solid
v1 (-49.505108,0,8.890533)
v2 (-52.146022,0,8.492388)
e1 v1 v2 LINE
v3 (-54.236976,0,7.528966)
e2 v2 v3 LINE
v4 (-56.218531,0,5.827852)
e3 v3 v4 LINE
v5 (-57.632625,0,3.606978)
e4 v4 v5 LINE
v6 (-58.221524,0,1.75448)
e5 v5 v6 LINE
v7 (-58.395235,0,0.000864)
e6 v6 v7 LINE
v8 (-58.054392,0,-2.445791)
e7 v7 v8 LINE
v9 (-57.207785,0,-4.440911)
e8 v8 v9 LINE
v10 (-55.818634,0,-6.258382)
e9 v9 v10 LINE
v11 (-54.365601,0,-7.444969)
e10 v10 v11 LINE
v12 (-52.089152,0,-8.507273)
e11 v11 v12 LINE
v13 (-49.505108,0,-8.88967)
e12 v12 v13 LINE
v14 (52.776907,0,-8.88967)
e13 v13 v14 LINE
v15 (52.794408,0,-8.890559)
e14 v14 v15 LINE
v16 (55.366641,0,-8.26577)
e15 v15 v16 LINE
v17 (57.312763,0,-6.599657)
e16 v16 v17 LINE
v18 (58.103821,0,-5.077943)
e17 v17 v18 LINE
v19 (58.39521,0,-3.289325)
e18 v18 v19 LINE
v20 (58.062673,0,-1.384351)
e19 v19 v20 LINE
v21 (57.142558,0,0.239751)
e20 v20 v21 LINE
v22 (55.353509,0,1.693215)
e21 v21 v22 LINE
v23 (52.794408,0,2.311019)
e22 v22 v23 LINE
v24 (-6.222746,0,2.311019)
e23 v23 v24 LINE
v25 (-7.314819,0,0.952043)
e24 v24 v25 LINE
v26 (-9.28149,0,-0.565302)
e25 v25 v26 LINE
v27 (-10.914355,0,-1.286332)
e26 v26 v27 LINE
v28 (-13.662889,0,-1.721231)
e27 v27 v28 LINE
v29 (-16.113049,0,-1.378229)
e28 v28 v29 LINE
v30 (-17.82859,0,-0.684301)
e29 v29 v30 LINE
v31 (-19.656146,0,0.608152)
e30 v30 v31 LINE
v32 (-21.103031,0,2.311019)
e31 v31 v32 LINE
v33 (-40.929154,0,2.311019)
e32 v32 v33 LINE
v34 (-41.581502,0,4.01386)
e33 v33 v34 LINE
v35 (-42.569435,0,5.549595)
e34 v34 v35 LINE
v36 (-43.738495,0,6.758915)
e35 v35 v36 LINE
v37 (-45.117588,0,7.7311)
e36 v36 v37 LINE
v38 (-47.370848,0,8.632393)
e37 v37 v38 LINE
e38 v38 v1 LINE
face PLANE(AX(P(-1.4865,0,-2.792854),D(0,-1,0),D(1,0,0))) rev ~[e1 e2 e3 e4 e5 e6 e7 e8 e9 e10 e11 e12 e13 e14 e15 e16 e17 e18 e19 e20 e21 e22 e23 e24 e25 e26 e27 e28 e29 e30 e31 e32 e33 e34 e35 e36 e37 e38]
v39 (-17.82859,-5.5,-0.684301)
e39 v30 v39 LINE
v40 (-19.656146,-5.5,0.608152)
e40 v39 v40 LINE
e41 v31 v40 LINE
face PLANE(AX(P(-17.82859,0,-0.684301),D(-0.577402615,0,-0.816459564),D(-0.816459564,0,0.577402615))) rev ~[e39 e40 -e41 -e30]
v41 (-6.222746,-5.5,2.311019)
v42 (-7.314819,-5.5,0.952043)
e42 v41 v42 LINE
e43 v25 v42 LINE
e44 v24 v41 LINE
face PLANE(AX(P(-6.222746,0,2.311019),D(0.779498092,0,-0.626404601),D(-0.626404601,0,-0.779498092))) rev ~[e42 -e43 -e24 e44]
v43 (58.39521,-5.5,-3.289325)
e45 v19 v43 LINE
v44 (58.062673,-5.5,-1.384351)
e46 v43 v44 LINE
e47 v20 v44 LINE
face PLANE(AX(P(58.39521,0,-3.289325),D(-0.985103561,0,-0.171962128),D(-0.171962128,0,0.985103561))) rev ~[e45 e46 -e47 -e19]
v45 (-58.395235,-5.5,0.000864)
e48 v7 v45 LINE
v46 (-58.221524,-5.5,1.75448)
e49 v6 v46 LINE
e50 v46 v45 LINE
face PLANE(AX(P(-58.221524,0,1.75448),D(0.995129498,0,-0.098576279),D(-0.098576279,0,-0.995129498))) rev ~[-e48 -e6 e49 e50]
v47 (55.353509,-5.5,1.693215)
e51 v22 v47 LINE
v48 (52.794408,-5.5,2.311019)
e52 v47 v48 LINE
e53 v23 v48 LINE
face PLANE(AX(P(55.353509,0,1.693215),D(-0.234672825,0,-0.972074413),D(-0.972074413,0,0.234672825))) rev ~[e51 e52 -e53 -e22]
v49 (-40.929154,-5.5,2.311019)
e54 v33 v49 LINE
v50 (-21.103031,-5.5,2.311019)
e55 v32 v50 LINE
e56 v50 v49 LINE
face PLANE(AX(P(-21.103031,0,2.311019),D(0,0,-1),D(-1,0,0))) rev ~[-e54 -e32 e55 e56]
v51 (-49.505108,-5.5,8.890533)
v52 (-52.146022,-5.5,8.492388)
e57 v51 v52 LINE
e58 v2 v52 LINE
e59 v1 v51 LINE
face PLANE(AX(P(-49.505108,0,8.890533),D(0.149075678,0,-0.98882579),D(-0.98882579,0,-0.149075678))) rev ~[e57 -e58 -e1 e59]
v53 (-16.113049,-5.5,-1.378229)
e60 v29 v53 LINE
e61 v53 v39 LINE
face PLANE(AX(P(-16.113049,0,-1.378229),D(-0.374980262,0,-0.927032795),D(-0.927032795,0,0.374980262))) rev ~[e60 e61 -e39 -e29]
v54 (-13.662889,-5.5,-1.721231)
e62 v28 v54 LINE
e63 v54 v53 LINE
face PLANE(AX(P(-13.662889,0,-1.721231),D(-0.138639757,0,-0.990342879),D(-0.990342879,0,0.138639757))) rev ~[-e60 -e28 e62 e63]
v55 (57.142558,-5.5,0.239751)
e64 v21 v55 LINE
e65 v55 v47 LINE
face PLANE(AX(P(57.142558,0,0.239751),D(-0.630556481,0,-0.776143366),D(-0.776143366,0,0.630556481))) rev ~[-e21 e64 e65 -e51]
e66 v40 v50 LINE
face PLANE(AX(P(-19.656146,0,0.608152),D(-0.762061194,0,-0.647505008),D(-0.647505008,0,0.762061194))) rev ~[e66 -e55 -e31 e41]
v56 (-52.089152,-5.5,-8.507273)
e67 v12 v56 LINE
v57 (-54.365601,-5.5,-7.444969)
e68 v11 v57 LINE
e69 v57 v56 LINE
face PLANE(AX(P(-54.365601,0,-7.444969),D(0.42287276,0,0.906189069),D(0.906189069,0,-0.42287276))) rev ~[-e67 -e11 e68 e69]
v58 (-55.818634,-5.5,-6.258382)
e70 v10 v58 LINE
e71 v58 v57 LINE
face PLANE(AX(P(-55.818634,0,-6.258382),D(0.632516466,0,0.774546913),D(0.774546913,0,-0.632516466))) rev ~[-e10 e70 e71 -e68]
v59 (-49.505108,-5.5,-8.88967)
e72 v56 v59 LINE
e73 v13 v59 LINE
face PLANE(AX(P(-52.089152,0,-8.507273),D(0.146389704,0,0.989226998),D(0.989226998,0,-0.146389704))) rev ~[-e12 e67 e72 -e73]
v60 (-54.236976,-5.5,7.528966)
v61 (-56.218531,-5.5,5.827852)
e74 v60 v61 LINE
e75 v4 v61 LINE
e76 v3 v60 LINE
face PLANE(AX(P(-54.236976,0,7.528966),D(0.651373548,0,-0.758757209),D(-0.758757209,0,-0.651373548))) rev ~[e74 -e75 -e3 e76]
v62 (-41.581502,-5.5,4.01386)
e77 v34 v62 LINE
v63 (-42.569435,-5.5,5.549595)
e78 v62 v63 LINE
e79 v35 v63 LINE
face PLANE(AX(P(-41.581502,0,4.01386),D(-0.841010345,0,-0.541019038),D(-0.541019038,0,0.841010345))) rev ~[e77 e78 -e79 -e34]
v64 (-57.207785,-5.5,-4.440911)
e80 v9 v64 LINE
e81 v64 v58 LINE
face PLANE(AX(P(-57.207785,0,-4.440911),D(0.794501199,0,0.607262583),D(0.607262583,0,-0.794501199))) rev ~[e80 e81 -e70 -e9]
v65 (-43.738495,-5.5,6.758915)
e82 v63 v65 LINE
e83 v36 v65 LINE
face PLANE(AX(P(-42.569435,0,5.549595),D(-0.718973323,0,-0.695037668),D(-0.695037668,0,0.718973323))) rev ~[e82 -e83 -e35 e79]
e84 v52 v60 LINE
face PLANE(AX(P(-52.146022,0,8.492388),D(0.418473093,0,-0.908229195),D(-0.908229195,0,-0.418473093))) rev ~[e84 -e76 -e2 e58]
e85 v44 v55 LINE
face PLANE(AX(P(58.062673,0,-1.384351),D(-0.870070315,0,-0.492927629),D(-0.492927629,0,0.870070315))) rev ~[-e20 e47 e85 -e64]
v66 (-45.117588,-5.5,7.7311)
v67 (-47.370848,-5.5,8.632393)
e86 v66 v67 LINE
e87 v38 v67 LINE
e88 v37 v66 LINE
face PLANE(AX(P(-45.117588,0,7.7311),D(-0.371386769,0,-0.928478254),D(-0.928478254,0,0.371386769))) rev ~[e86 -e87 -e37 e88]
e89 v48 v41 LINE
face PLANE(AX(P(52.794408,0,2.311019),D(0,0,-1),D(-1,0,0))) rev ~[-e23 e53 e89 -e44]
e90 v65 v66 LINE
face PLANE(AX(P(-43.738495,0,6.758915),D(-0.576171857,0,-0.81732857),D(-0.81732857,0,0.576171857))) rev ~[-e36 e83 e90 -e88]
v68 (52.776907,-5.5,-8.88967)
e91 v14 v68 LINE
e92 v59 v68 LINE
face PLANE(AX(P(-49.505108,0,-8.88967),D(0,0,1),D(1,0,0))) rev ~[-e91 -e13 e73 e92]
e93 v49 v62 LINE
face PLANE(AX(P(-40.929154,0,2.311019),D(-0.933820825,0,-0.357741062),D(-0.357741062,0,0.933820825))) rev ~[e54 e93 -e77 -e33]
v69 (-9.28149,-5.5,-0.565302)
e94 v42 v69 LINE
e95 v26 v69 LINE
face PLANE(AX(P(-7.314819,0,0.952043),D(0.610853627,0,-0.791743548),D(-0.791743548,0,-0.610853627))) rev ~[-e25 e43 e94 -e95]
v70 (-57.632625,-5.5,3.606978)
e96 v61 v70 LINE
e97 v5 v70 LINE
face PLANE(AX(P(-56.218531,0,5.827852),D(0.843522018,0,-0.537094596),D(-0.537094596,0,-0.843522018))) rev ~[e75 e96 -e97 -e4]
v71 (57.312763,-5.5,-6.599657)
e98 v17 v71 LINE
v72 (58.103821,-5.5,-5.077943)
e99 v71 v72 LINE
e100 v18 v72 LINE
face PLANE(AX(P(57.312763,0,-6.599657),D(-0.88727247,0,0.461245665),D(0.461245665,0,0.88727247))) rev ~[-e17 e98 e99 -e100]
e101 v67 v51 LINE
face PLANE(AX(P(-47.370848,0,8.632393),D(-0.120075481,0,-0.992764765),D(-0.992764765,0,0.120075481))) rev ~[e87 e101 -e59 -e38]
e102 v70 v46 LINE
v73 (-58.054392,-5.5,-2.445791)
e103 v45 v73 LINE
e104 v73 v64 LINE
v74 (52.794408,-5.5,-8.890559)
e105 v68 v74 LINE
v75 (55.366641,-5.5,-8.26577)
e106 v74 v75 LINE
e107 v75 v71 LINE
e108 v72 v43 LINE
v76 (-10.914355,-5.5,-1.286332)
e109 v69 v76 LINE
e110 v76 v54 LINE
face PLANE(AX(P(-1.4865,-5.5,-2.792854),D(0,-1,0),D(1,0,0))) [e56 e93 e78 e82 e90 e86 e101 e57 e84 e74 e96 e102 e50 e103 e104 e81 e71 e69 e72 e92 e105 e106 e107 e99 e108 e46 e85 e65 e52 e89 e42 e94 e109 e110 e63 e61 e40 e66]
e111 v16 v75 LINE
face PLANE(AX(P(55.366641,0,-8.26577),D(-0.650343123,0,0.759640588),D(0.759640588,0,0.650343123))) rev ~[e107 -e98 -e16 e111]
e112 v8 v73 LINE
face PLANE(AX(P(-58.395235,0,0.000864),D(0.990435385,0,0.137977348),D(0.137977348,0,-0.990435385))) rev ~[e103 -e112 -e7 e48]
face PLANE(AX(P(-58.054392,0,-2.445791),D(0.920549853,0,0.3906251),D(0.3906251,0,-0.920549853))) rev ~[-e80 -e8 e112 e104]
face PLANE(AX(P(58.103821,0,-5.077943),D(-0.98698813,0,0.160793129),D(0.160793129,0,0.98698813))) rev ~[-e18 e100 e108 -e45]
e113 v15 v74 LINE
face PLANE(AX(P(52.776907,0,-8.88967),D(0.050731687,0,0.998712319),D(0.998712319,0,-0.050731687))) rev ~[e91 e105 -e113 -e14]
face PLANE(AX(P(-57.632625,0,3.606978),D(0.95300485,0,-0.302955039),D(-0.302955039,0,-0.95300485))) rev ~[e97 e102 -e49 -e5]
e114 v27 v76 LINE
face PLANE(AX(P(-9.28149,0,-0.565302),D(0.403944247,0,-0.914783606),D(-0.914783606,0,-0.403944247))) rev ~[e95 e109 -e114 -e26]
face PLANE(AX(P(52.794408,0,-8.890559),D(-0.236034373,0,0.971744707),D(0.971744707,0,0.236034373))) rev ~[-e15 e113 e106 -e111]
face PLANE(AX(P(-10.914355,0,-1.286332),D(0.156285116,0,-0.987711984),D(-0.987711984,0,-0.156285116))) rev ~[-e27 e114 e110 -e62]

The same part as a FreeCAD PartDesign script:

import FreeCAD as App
import Part
import Sketcher
from FreeCAD import Vector
Q = App.Units.Quantity

doc = App.newDocument("Part")
params = doc.addObject("Spreadsheet::Sheet", "Params")
for row, (alias, value) in enumerate([
    ("pad1_length", "5.5 mm"),
], start=1):
    params.set(f"A{row}", alias)
    params.set(f"B{row}", "=" + value)
    params.setAlias(f"B{row}", alias)

body = doc.addObject("PartDesign::Body", "Body")

sketch1 = doc.addObject("Sketcher::SketchObject", "Sketch")
body.addObject(sketch1)
sketch1.AttachmentSupport = (doc.XZ_Plane, [""])
sketch1.MapMode = "FlatFace"
sketch1.addGeometry([
    Part.LineSegment(Vector(55.353509, 1.693215, 0), Vector(52.794408, 2.311019, 0)),
    Part.LineSegment(Vector(52.794408, 2.311019, 0), Vector(-6.222746, 2.311019, 0)),
    Part.LineSegment(Vector(-6.222746, 2.311019, 0), Vector(-7.314819, 0.952043, 0)),
    Part.LineSegment(Vector(-7.314819, 0.952043, 0), Vector(-9.28149, -0.565302, 0)),
    Part.LineSegment(Vector(-9.28149, -0.565302, 0), Vector(-10.914355, -1.286332, 0)),
    Part.LineSegment(Vector(-10.914355, -1.286332, 0), Vector(-13.662889, -1.721231, 0)),
    Part.LineSegment(Vector(-13.662889, -1.721231, 0), Vector(-16.113049, -1.378229, 0)),
    Part.LineSegment(Vector(-16.113049, -1.378229, 0), Vector(-17.82859, -0.684301, 0)),
    Part.LineSegment(Vector(-17.82859, -0.684301, 0), Vector(-19.656146, 0.608152, 0)),
    Part.LineSegment(Vector(-19.656146, 0.608152, 0), Vector(-21.103031, 2.311019, 0)),
    Part.LineSegment(Vector(-21.103031, 2.311019, 0), Vector(-40.929154, 2.311019, 0)),
    Part.LineSegment(Vector(-40.929154, 2.311019, 0), Vector(-41.581502, 4.01386, 0)),
    Part.LineSegment(Vector(-41.581502, 4.01386, 0), Vector(-42.569435, 5.549595, 0)),
    Part.LineSegment(Vector(-42.569435, 5.549595, 0), Vector(-43.738495, 6.758915, 0)),
    Part.LineSegment(Vector(-43.738495, 6.758915, 0), Vector(-45.117588, 7.7311, 0)),
    Part.LineSegment(Vector(-45.117588, 7.7311, 0), Vector(-47.370848, 8.632393, 0)),
    Part.LineSegment(Vector(-47.370848, 8.632393, 0), Vector(-49.505108, 8.890533, 0)),
    Part.LineSegment(Vector(-49.505108, 8.890533, 0), Vector(-52.146022, 8.492388, 0)),
    Part.LineSegment(Vector(-52.146022, 8.492388, 0), Vector(-54.236976, 7.528966, 0)),
    Part.LineSegment(Vector(-54.236976, 7.528966, 0), Vector(-56.218531, 5.827852, 0)),
    Part.LineSegment(Vector(-56.218531, 5.827852, 0), Vector(-57.632625, 3.606978, 0)),
    Part.LineSegment(Vector(-57.632625, 3.606978, 0), Vector(-58.221524, 1.75448, 0)),
    Part.LineSegment(Vector(-58.221524, 1.75448, 0), Vector(-58.395235, 0.000864, 0)),
    Part.LineSegment(Vector(-58.395235, 0.000864, 0), Vector(-58.054392, -2.445791, 0)),
    Part.LineSegment(Vector(-58.054392, -2.445791, 0), Vector(-57.207785, -4.440911, 0)),
    Part.LineSegment(Vector(-57.207785, -4.440911, 0), Vector(-55.818634, -6.258382, 0)),
    Part.LineSegment(Vector(-55.818634, -6.258382, 0), Vector(-54.365601, -7.444969, 0)),
    Part.LineSegment(Vector(-54.365601, -7.444969, 0), Vector(-52.089152, -8.507273, 0)),
    Part.LineSegment(Vector(-52.089152, -8.507273, 0), Vector(-49.505108, -8.88967, 0)),
    Part.LineSegment(Vector(-49.505108, -8.88967, 0), Vector(52.776907, -8.88967, 0)),
    Part.LineSegment(Vector(52.776907, -8.88967, 0), Vector(52.794408, -8.890559, 0)),
    Part.LineSegment(Vector(52.794408, -8.890559, 0), Vector(55.366641, -8.26577, 0)),
    Part.LineSegment(Vector(55.366641, -8.26577, 0), Vector(57.312763, -6.599657, 0)),
    Part.LineSegment(Vector(57.312763, -6.599657, 0), Vector(58.103821, -5.077943, 0)),
    Part.LineSegment(Vector(58.103821, -5.077943, 0), Vector(58.39521, -3.289325, 0)),
    Part.LineSegment(Vector(58.39521, -3.289325, 0), Vector(58.062673, -1.384351, 0)),
    Part.LineSegment(Vector(58.062673, -1.384351, 0), Vector(57.142558, 0.239751, 0)),
    Part.LineSegment(Vector(57.142558, 0.239751, 0), Vector(55.353509, 1.693215, 0)),
], False)
sketch1.addConstraint([
    Sketcher.Constraint("Coincident", 0, 2, 1, 1),
    Sketcher.Constraint("Coincident", 1, 2, 2, 1),
    Sketcher.Constraint("Coincident", 2, 2, 3, 1),
    Sketcher.Constraint("Coincident", 3, 2, 4, 1),
    Sketcher.Constraint("Coincident", 4, 2, 5, 1),
    Sketcher.Constraint("Coincident", 5, 2, 6, 1),
    Sketcher.Constraint("Coincident", 6, 2, 7, 1),
    Sketcher.Constraint("Coincident", 7, 2, 8, 1),
    Sketcher.Constraint("Coincident", 8, 2, 9, 1),
    Sketcher.Constraint("Coincident", 9, 2, 10, 1),
    Sketcher.Constraint("Coincident", 10, 2, 11, 1),
    Sketcher.Constraint("Coincident", 11, 2, 12, 1),
    Sketcher.Constraint("Coincident", 12, 2, 13, 1),
    Sketcher.Constraint("Coincident", 13, 2, 14, 1),
    Sketcher.Constraint("Coincident", 14, 2, 15, 1),
    Sketcher.Constraint("Coincident", 15, 2, 16, 1),
    Sketcher.Constraint("Coincident", 16, 2, 17, 1),
    Sketcher.Constraint("Coincident", 17, 2, 18, 1),
    Sketcher.Constraint("Coincident", 18, 2, 19, 1),
    Sketcher.Constraint("Coincident", 19, 2, 20, 1),
    Sketcher.Constraint("Coincident", 20, 2, 21, 1),
    Sketcher.Constraint("Coincident", 21, 2, 22, 1),
    Sketcher.Constraint("Coincident", 22, 2, 23, 1),
    Sketcher.Constraint("Coincident", 23, 2, 24, 1),
    Sketcher.Constraint("Coincident", 24, 2, 25, 1),
    Sketcher.Constraint("Coincident", 25, 2, 26, 1),
    Sketcher.Constraint("Coincident", 26, 2, 27, 1),
    Sketcher.Constraint("Coincident", 27, 2, 28, 1),
    Sketcher.Constraint("Coincident", 28, 2, 29, 1),
    Sketcher.Constraint("Coincident", 29, 2, 30, 1),
    Sketcher.Constraint("Coincident", 30, 2, 31, 1),
    Sketcher.Constraint("Coincident", 31, 2, 32, 1),
    Sketcher.Constraint("Coincident", 32, 2, 33, 1),
    Sketcher.Constraint("Coincident", 33, 2, 34, 1),
    Sketcher.Constraint("Coincident", 34, 2, 35, 1),
    Sketcher.Constraint("Coincident", 35, 2, 36, 1),
    Sketcher.Constraint("Coincident", 36, 2, 37, 1),
    Sketcher.Constraint("Coincident", 37, 2, 0, 1),
    Sketcher.Constraint("Horizontal", 1),
    Sketcher.Constraint("Horizontal", 10),
    Sketcher.Constraint("Horizontal", 29),
    Sketcher.Constraint("Horizontal", 1, 2, 9, 2),
    Sketcher.Constraint("Vertical", 16, 2, 28, 2),
    Sketcher.Constraint("Vertical", 0, 2, 30, 2),
    Sketcher.Constraint("DistanceY", 7, 2, 3, 2, Q("0.118999 mm")),
    Sketcher.Constraint("Distance", 2, Q("1.743399 mm")),
    Sketcher.Constraint("Distance", 22, Q("1.762199 mm")),
    Sketcher.Constraint("Distance", 32, Q("2.561898 mm")),
    Sketcher.Constraint("Distance", 34, Q("1.812198 mm")),
    Sketcher.Constraint("DistanceY", 3, 2, -1, 1, Q("0.565302 mm")),
    Sketcher.Constraint("DistanceY", -1, 1, 14, 2, Q("7.7311 mm")),
    Sketcher.Constraint("DistanceX", 26, 2, -1, 1, Q("54.365601 mm")),
    Sketcher.Constraint("DistanceY", 5, 2, 4, 2, Q("0.434899 mm")),
    Sketcher.Constraint("DistanceX", 5, 2, 3, 2, Q("4.381399 mm")),
    Sketcher.Constraint("DistanceX", 7, 2, 5, 2, Q("4.165701 mm")),
    Sketcher.Constraint("DistanceY", 12, 2, 15, 2, Q("3.082798 mm")),
    Sketcher.Constraint("DistanceX", 21, 2, 20, 2, Q("0.588899 mm")),
    Sketcher.Constraint("DistanceY", 22, 2, 18, 2, Q("7.528102 mm")),
    Sketcher.Constraint("DistanceX", 22, 2, 25, 2, Q("2.576601 mm")),
    Sketcher.Constraint("DistanceY", 28, 2, 26, 2, Q("1.444701 mm")),
    Sketcher.Constraint("DistanceX", 29, 2, 0, 2, Q("0.017501 mm")),
    Sketcher.Constraint("DistanceY", 29, 2, 31, 2, Q("0.6239 mm")),
    Sketcher.Constraint("DistanceY", 30, 2, 32, 2, Q("2.290902 mm")),
    Sketcher.Constraint("DistanceX", 0, 2, 37, 2, Q("2.559101 mm")),
    Sketcher.Constraint("DistanceX", 37, 2, 34, 2, Q("3.041701 mm")),
    Sketcher.Constraint("Distance", 0, Q("2.632618 mm")),
    Sketcher.Constraint("Distance", 5, Q("2.782728 mm")),
    Sketcher.Constraint("Distance", 8, Q("2.238391 mm")),
    Sketcher.Constraint("Distance", 11, Q("1.82352 mm")),
    Sketcher.Constraint("Distance", 12, Q("1.82606 mm")),
    Sketcher.Constraint("Distance", 13, Q("1.68201 mm")),
    Sketcher.Constraint("Distance", 15, Q("2.426831 mm")),
    Sketcher.Constraint("Distance", 18, Q("2.302232 mm")),
    Sketcher.Constraint("Distance", 19, Q("2.61158 mm")),
    Sketcher.Constraint("Distance", 20, Q("2.632858 mm")),
    Sketcher.Constraint("Distance", 21, Q("1.943849 mm")),
    Sketcher.Constraint("Distance", 26, Q("1.875978 mm")),
    Sketcher.Constraint("Distance", 35, Q("1.93378 mm")),
    Sketcher.Constraint("Distance", 37, Q("2.30505 mm")),
    Sketcher.Constraint("DistanceX", 1, 2, 1, 1, Q("59.017154 mm")),
    Sketcher.Constraint("DistanceX", 10, 2, 10, 1, Q("19.826123 mm")),
    Sketcher.Constraint("DistanceX", 29, 1, 29, 2, Q("102.282015 mm")),
    Sketcher.Constraint("DistanceY", -1, 1, 0, 2, Q("2.311019 mm")),
    Sketcher.Constraint("DistanceX", 2, 2, -1, 1, Q("7.314819 mm")),
    Sketcher.Constraint("DistanceX", 3, 2, -1, 1, Q("9.28149 mm")),
    Sketcher.Constraint("DistanceY", 5, 2, -1, 1, Q("1.721231 mm")),
    Sketcher.Constraint("DistanceX", 6, 2, -1, 1, Q("16.113049 mm")),
    Sketcher.Constraint("DistanceY", 6, 2, -1, 1, Q("1.378229 mm")),
    Sketcher.Constraint("DistanceX", 9, 2, -1, 1, Q("21.103031 mm")),
    Sketcher.Constraint("DistanceY", -1, 1, 11, 2, Q("4.01386 mm")),
    Sketcher.Constraint("DistanceX", 15, 2, -1, 1, Q("47.370848 mm")),
    Sketcher.Constraint("DistanceX", 19, 2, -1, 1, Q("56.218531 mm")),
    Sketcher.Constraint("DistanceY", -1, 1, 21, 2, Q("1.75448 mm")),
    Sketcher.Constraint("DistanceY", 23, 2, -1, 1, Q("2.445791 mm")),
    Sketcher.Constraint("DistanceY", 24, 2, -1, 1, Q("4.440911 mm")),
    Sketcher.Constraint("DistanceY", 26, 2, -1, 1, Q("7.444969 mm")),
    Sketcher.Constraint("DistanceY", 30, 2, -1, 1, Q("8.890559 mm")),
    Sketcher.Constraint("DistanceX", -1, 1, 31, 2, Q("55.366641 mm")),
    Sketcher.Constraint("DistanceX", -1, 1, 33, 2, Q("58.103821 mm")),
    Sketcher.Constraint("DistanceX", -1, 1, 34, 2, Q("58.39521 mm")),
    Sketcher.Constraint("DistanceY", 35, 2, -1, 1, Q("1.384351 mm")),
    Sketcher.Constraint("DistanceY", -1, 1, 36, 2, Q("0.239751 mm")),
    Sketcher.Constraint("DistanceY", 6, 2, 8, 2, Q("1.986381 mm")),
    Sketcher.Constraint("DistanceX", 12, 2, 10, 2, Q("1.640281 mm")),
    Sketcher.Constraint("DistanceX", 13, 2, 12, 2, Q("1.16906 mm")),
    Sketcher.Constraint("DistanceY", 15, 2, 16, 2, Q("0.25814 mm")),
    Sketcher.Constraint("DistanceY", 14, 2, 17, 2, Q("0.761288 mm")),
    Sketcher.Constraint("DistanceX", 18, 2, 14, 2, Q("9.119388 mm")),
    Sketcher.Constraint("DistanceY", 13, 2, 18, 2, Q("0.770051 mm")),
    Sketcher.Constraint("DistanceX", 23, 2, 19, 2, Q("1.835861 mm")),
    Sketcher.Constraint("DistanceX", 22, 2, 24, 2, Q("1.18745 mm")),
    Sketcher.Constraint("DistanceX", 26, 2, 27, 2, Q("2.276449 mm")),
    Sketcher.Constraint("DistanceY", 27, 2, 25, 2, Q("2.248891 mm")),
    Sketcher.Constraint("DistanceY", 32, 2, 34, 2, Q("3.310332 mm")),
])
pad1 = doc.addObject("PartDesign::Pad", "Pad")
body.addObject(pad1)
pad1.Profile = sketch1
pad1.setExpression("Length", "Params.pad1_length")

doc.recompute()
